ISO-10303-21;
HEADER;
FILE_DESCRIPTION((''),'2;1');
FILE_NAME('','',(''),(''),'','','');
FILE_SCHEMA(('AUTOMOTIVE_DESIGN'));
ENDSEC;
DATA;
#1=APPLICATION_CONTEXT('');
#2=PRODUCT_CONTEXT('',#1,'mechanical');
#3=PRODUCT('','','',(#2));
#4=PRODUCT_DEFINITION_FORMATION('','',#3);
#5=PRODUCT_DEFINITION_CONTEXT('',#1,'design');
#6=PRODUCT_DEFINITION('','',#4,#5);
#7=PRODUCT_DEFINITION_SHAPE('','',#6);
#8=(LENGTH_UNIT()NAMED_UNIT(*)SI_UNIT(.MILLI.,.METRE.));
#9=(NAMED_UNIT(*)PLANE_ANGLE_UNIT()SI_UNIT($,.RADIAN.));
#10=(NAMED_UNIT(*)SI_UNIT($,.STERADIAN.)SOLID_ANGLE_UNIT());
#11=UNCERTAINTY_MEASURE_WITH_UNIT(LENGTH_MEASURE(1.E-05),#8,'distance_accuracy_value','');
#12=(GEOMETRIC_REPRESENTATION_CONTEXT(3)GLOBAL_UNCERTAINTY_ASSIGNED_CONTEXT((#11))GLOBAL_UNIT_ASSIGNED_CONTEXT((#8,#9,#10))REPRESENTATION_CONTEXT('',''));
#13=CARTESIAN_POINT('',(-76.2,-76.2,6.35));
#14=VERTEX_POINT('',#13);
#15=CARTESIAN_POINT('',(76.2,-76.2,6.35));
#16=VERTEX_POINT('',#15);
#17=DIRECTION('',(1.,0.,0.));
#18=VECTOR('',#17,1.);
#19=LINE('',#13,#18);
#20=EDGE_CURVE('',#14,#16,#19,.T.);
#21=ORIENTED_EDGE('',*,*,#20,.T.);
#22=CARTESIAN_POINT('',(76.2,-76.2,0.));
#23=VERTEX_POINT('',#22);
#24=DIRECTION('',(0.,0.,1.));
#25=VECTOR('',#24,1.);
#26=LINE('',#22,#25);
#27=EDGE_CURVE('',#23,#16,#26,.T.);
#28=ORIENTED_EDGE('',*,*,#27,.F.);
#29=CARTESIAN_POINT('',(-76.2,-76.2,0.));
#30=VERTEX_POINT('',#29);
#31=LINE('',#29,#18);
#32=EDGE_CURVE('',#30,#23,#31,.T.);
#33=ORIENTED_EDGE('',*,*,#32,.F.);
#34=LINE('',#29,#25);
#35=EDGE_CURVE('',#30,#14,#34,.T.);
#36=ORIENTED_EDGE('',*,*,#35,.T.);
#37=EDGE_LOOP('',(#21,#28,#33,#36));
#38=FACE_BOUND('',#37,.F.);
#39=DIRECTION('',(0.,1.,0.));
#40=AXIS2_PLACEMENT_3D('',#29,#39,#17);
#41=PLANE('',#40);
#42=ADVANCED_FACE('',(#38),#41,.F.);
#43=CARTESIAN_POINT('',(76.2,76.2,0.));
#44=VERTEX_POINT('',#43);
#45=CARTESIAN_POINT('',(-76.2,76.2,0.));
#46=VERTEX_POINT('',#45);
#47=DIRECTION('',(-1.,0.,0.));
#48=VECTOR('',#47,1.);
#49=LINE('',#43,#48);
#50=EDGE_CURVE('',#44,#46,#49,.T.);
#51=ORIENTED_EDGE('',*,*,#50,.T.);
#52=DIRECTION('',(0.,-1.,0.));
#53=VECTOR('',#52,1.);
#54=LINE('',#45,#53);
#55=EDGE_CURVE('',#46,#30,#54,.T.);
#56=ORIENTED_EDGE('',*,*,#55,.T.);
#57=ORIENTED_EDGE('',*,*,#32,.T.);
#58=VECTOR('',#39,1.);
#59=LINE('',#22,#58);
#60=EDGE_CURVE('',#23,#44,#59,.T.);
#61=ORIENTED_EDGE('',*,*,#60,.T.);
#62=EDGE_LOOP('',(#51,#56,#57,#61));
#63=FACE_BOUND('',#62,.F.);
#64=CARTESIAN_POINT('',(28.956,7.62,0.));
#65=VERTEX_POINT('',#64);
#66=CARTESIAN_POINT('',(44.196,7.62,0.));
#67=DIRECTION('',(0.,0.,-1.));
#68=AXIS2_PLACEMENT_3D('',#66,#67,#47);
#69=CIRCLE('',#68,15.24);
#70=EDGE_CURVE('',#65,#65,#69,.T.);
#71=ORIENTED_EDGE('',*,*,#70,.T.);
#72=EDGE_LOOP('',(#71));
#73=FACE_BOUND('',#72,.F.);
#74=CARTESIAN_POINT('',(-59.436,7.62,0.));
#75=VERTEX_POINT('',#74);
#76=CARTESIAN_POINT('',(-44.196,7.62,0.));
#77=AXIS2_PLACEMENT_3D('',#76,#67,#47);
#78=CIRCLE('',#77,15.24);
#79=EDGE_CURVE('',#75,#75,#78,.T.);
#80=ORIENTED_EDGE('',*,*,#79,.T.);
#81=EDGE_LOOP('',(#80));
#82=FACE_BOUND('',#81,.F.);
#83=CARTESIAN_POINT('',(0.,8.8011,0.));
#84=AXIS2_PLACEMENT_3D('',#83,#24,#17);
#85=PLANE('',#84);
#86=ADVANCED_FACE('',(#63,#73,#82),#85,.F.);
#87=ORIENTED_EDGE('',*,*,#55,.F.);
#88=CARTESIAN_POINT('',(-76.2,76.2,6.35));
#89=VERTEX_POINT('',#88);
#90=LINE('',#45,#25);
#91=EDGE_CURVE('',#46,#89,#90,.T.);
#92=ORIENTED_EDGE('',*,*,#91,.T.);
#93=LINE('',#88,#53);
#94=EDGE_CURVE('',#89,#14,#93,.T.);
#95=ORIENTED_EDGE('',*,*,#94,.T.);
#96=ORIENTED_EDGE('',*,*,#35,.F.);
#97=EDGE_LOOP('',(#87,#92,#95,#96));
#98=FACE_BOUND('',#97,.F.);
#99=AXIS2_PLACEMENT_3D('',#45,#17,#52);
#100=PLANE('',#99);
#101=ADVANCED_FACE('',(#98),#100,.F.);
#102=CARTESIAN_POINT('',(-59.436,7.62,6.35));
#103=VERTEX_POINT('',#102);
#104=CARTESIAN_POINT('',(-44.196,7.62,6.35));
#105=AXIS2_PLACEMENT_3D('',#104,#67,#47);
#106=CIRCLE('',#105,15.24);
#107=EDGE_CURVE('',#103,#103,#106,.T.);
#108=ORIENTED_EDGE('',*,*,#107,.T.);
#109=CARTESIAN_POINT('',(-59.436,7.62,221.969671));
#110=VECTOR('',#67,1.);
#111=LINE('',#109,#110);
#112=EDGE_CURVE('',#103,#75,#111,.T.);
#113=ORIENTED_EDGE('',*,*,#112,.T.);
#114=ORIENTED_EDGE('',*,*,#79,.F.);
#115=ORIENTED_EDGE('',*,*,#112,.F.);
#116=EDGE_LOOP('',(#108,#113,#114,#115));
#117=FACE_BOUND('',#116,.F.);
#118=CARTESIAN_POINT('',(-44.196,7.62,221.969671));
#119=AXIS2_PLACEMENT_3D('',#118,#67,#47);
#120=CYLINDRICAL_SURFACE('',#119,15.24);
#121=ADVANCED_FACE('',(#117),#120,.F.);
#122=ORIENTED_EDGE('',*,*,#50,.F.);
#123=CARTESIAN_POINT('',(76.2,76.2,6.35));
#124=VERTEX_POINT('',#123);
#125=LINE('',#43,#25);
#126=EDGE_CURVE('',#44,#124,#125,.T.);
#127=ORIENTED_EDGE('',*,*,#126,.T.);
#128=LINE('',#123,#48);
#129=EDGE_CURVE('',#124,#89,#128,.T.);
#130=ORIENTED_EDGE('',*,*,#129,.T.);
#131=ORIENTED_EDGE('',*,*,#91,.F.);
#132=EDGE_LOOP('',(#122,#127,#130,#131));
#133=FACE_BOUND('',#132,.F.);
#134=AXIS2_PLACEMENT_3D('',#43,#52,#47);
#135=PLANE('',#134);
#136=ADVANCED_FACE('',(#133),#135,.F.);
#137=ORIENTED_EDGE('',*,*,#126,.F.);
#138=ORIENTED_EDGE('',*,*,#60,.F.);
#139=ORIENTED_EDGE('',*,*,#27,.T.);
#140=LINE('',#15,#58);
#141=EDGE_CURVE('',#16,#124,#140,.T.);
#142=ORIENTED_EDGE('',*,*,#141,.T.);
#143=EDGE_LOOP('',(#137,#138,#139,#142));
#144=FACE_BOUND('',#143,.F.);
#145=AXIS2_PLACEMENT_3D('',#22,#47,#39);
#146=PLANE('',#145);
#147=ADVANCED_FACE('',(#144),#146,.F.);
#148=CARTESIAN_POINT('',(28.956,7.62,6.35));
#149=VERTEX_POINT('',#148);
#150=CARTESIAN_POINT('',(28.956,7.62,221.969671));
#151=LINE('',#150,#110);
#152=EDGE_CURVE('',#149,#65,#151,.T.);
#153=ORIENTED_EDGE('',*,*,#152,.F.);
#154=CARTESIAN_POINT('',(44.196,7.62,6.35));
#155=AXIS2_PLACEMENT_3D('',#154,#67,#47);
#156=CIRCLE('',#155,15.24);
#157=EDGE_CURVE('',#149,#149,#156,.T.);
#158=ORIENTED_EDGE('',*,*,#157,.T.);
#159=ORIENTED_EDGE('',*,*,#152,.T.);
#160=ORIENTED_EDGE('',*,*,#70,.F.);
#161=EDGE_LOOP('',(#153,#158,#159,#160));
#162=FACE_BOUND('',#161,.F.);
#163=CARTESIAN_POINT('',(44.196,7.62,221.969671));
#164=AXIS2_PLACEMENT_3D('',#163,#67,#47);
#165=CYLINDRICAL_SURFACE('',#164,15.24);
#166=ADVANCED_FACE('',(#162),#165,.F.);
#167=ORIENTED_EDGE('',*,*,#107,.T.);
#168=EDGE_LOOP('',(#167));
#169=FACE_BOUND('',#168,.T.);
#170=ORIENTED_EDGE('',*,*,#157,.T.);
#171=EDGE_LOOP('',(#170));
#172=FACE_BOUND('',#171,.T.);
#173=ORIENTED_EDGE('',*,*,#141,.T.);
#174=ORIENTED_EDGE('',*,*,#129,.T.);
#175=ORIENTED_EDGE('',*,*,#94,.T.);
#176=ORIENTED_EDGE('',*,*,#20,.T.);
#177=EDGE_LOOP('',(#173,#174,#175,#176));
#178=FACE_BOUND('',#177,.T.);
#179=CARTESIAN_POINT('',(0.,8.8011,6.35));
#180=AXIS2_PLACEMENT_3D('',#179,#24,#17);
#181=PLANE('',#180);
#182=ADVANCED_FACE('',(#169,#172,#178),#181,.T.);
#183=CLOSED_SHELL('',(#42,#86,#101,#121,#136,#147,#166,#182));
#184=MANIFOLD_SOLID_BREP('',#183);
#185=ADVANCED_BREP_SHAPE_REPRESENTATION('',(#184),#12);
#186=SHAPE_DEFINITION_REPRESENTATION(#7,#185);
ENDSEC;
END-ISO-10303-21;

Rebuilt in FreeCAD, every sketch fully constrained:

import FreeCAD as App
import Part
import Sketcher
Q = App.Units.Quantity

doc = App.newDocument("Part")
params = doc.addObject("Spreadsheet::Sheet", "Params")
for row, (alias, value) in enumerate([
    ("sketch1_width", "6 in"),
    ("pad1_length", "0.25 in"),
    ("sketch2_diameter", "1.2 in"),
    ("hole_diameter", "1.2 in"),
], start=1):
    params.set(f"A{row}", alias)
    params.set(f"B{row}", "=" + value)
    params.setAlias(f"B{row}", alias)

body = doc.addObject("PartDesign::Body", "Body")

sketch1 = body.newObject("Sketcher::SketchObject", "Sketch")
sketch1.AttachmentSupport = (doc.getObject("XY_Plane"), [""])
sketch1.MapMode = "FlatFace"
sketch1.addGeometry([
    Part.LineSegment(App.Vector(76, 76, 0), App.Vector(-76, 76, 0)),
    Part.LineSegment(App.Vector(-76, 76, 0), App.Vector(-76, -76, 0)),
    Part.LineSegment(App.Vector(-76, -76, 0), App.Vector(76, -76, 0)),
    Part.LineSegment(App.Vector(76, -76, 0), App.Vector(76, 76, 0)),
], False)
sketch1.addConstraint([
    Sketcher.Constraint("Coincident", 0, 2, 1, 1),
    Sketcher.Constraint("Coincident", 1, 2, 2, 1),
    Sketcher.Constraint("Coincident", 2, 2, 3, 1),
    Sketcher.Constraint("Coincident", 3, 2, 0, 1),
    Sketcher.Constraint("Horizontal", 0),
    Sketcher.Constraint("Vertical", 1),
    Sketcher.Constraint("Horizontal", 2),
    Sketcher.Constraint("Vertical", 3),
    Sketcher.Constraint("Symmetric", 0, 2, 2, 2, -1, 1),
    Sketcher.Constraint("Equal", 2, 1),
    Sketcher.Constraint("DistanceX", 0, 2, 0, 1, Q("6 in")),
])
sketch1.setExpression("Constraints[10]", "Params.sketch1_width")
pad1 = body.newObject("PartDesign::Pad", "Pad")
pad1.Profile = sketch1
pad1.setExpression("Length", "Params.pad1_length")

sketch2 = body.newObject("Sketcher::SketchObject", "Sketch001")
sketch2.AttachmentSupport = (doc.getObject("XY_Plane"), [""])
sketch2.MapMode = "FlatFace"
sketch2.AttachmentOffset = App.Placement(App.Vector(0, 0, 0.25 * 25.4), App.Rotation())
sketch2.addGeometry([
    Part.Circle(App.Vector(-44, 8, 0), App.Vector(0, 0, 1), 15),
    Part.Circle(App.Vector(44, 8, 0), App.Vector(0, 0, 1), 15),
], False)
sketch2.addConstraint([
    Sketcher.Constraint("Equal", 0, 1),
    Sketcher.Constraint("Symmetric", 0, 3, 1, 3, -2),
    Sketcher.Constraint("Diameter", 0, Q("1.2 in")),
    Sketcher.Constraint("DistanceY", -1, 1, 0, 3, Q("0.3 in")),
    Sketcher.Constraint("DistanceX", 0, 3, -1, 1, Q("1.74 in")),
])
sketch2.setExpression("Constraints[2]", "Params.sketch2_diameter")
doc.recompute()
hole = body.newObject("PartDesign::Hole", "Hole")
hole.Profile = sketch2
hole.ThreadType = "None"
hole.setExpression("Diameter", "Params.hole_diameter")
hole.DepthType = "ThroughAll"

doc.recompute()
